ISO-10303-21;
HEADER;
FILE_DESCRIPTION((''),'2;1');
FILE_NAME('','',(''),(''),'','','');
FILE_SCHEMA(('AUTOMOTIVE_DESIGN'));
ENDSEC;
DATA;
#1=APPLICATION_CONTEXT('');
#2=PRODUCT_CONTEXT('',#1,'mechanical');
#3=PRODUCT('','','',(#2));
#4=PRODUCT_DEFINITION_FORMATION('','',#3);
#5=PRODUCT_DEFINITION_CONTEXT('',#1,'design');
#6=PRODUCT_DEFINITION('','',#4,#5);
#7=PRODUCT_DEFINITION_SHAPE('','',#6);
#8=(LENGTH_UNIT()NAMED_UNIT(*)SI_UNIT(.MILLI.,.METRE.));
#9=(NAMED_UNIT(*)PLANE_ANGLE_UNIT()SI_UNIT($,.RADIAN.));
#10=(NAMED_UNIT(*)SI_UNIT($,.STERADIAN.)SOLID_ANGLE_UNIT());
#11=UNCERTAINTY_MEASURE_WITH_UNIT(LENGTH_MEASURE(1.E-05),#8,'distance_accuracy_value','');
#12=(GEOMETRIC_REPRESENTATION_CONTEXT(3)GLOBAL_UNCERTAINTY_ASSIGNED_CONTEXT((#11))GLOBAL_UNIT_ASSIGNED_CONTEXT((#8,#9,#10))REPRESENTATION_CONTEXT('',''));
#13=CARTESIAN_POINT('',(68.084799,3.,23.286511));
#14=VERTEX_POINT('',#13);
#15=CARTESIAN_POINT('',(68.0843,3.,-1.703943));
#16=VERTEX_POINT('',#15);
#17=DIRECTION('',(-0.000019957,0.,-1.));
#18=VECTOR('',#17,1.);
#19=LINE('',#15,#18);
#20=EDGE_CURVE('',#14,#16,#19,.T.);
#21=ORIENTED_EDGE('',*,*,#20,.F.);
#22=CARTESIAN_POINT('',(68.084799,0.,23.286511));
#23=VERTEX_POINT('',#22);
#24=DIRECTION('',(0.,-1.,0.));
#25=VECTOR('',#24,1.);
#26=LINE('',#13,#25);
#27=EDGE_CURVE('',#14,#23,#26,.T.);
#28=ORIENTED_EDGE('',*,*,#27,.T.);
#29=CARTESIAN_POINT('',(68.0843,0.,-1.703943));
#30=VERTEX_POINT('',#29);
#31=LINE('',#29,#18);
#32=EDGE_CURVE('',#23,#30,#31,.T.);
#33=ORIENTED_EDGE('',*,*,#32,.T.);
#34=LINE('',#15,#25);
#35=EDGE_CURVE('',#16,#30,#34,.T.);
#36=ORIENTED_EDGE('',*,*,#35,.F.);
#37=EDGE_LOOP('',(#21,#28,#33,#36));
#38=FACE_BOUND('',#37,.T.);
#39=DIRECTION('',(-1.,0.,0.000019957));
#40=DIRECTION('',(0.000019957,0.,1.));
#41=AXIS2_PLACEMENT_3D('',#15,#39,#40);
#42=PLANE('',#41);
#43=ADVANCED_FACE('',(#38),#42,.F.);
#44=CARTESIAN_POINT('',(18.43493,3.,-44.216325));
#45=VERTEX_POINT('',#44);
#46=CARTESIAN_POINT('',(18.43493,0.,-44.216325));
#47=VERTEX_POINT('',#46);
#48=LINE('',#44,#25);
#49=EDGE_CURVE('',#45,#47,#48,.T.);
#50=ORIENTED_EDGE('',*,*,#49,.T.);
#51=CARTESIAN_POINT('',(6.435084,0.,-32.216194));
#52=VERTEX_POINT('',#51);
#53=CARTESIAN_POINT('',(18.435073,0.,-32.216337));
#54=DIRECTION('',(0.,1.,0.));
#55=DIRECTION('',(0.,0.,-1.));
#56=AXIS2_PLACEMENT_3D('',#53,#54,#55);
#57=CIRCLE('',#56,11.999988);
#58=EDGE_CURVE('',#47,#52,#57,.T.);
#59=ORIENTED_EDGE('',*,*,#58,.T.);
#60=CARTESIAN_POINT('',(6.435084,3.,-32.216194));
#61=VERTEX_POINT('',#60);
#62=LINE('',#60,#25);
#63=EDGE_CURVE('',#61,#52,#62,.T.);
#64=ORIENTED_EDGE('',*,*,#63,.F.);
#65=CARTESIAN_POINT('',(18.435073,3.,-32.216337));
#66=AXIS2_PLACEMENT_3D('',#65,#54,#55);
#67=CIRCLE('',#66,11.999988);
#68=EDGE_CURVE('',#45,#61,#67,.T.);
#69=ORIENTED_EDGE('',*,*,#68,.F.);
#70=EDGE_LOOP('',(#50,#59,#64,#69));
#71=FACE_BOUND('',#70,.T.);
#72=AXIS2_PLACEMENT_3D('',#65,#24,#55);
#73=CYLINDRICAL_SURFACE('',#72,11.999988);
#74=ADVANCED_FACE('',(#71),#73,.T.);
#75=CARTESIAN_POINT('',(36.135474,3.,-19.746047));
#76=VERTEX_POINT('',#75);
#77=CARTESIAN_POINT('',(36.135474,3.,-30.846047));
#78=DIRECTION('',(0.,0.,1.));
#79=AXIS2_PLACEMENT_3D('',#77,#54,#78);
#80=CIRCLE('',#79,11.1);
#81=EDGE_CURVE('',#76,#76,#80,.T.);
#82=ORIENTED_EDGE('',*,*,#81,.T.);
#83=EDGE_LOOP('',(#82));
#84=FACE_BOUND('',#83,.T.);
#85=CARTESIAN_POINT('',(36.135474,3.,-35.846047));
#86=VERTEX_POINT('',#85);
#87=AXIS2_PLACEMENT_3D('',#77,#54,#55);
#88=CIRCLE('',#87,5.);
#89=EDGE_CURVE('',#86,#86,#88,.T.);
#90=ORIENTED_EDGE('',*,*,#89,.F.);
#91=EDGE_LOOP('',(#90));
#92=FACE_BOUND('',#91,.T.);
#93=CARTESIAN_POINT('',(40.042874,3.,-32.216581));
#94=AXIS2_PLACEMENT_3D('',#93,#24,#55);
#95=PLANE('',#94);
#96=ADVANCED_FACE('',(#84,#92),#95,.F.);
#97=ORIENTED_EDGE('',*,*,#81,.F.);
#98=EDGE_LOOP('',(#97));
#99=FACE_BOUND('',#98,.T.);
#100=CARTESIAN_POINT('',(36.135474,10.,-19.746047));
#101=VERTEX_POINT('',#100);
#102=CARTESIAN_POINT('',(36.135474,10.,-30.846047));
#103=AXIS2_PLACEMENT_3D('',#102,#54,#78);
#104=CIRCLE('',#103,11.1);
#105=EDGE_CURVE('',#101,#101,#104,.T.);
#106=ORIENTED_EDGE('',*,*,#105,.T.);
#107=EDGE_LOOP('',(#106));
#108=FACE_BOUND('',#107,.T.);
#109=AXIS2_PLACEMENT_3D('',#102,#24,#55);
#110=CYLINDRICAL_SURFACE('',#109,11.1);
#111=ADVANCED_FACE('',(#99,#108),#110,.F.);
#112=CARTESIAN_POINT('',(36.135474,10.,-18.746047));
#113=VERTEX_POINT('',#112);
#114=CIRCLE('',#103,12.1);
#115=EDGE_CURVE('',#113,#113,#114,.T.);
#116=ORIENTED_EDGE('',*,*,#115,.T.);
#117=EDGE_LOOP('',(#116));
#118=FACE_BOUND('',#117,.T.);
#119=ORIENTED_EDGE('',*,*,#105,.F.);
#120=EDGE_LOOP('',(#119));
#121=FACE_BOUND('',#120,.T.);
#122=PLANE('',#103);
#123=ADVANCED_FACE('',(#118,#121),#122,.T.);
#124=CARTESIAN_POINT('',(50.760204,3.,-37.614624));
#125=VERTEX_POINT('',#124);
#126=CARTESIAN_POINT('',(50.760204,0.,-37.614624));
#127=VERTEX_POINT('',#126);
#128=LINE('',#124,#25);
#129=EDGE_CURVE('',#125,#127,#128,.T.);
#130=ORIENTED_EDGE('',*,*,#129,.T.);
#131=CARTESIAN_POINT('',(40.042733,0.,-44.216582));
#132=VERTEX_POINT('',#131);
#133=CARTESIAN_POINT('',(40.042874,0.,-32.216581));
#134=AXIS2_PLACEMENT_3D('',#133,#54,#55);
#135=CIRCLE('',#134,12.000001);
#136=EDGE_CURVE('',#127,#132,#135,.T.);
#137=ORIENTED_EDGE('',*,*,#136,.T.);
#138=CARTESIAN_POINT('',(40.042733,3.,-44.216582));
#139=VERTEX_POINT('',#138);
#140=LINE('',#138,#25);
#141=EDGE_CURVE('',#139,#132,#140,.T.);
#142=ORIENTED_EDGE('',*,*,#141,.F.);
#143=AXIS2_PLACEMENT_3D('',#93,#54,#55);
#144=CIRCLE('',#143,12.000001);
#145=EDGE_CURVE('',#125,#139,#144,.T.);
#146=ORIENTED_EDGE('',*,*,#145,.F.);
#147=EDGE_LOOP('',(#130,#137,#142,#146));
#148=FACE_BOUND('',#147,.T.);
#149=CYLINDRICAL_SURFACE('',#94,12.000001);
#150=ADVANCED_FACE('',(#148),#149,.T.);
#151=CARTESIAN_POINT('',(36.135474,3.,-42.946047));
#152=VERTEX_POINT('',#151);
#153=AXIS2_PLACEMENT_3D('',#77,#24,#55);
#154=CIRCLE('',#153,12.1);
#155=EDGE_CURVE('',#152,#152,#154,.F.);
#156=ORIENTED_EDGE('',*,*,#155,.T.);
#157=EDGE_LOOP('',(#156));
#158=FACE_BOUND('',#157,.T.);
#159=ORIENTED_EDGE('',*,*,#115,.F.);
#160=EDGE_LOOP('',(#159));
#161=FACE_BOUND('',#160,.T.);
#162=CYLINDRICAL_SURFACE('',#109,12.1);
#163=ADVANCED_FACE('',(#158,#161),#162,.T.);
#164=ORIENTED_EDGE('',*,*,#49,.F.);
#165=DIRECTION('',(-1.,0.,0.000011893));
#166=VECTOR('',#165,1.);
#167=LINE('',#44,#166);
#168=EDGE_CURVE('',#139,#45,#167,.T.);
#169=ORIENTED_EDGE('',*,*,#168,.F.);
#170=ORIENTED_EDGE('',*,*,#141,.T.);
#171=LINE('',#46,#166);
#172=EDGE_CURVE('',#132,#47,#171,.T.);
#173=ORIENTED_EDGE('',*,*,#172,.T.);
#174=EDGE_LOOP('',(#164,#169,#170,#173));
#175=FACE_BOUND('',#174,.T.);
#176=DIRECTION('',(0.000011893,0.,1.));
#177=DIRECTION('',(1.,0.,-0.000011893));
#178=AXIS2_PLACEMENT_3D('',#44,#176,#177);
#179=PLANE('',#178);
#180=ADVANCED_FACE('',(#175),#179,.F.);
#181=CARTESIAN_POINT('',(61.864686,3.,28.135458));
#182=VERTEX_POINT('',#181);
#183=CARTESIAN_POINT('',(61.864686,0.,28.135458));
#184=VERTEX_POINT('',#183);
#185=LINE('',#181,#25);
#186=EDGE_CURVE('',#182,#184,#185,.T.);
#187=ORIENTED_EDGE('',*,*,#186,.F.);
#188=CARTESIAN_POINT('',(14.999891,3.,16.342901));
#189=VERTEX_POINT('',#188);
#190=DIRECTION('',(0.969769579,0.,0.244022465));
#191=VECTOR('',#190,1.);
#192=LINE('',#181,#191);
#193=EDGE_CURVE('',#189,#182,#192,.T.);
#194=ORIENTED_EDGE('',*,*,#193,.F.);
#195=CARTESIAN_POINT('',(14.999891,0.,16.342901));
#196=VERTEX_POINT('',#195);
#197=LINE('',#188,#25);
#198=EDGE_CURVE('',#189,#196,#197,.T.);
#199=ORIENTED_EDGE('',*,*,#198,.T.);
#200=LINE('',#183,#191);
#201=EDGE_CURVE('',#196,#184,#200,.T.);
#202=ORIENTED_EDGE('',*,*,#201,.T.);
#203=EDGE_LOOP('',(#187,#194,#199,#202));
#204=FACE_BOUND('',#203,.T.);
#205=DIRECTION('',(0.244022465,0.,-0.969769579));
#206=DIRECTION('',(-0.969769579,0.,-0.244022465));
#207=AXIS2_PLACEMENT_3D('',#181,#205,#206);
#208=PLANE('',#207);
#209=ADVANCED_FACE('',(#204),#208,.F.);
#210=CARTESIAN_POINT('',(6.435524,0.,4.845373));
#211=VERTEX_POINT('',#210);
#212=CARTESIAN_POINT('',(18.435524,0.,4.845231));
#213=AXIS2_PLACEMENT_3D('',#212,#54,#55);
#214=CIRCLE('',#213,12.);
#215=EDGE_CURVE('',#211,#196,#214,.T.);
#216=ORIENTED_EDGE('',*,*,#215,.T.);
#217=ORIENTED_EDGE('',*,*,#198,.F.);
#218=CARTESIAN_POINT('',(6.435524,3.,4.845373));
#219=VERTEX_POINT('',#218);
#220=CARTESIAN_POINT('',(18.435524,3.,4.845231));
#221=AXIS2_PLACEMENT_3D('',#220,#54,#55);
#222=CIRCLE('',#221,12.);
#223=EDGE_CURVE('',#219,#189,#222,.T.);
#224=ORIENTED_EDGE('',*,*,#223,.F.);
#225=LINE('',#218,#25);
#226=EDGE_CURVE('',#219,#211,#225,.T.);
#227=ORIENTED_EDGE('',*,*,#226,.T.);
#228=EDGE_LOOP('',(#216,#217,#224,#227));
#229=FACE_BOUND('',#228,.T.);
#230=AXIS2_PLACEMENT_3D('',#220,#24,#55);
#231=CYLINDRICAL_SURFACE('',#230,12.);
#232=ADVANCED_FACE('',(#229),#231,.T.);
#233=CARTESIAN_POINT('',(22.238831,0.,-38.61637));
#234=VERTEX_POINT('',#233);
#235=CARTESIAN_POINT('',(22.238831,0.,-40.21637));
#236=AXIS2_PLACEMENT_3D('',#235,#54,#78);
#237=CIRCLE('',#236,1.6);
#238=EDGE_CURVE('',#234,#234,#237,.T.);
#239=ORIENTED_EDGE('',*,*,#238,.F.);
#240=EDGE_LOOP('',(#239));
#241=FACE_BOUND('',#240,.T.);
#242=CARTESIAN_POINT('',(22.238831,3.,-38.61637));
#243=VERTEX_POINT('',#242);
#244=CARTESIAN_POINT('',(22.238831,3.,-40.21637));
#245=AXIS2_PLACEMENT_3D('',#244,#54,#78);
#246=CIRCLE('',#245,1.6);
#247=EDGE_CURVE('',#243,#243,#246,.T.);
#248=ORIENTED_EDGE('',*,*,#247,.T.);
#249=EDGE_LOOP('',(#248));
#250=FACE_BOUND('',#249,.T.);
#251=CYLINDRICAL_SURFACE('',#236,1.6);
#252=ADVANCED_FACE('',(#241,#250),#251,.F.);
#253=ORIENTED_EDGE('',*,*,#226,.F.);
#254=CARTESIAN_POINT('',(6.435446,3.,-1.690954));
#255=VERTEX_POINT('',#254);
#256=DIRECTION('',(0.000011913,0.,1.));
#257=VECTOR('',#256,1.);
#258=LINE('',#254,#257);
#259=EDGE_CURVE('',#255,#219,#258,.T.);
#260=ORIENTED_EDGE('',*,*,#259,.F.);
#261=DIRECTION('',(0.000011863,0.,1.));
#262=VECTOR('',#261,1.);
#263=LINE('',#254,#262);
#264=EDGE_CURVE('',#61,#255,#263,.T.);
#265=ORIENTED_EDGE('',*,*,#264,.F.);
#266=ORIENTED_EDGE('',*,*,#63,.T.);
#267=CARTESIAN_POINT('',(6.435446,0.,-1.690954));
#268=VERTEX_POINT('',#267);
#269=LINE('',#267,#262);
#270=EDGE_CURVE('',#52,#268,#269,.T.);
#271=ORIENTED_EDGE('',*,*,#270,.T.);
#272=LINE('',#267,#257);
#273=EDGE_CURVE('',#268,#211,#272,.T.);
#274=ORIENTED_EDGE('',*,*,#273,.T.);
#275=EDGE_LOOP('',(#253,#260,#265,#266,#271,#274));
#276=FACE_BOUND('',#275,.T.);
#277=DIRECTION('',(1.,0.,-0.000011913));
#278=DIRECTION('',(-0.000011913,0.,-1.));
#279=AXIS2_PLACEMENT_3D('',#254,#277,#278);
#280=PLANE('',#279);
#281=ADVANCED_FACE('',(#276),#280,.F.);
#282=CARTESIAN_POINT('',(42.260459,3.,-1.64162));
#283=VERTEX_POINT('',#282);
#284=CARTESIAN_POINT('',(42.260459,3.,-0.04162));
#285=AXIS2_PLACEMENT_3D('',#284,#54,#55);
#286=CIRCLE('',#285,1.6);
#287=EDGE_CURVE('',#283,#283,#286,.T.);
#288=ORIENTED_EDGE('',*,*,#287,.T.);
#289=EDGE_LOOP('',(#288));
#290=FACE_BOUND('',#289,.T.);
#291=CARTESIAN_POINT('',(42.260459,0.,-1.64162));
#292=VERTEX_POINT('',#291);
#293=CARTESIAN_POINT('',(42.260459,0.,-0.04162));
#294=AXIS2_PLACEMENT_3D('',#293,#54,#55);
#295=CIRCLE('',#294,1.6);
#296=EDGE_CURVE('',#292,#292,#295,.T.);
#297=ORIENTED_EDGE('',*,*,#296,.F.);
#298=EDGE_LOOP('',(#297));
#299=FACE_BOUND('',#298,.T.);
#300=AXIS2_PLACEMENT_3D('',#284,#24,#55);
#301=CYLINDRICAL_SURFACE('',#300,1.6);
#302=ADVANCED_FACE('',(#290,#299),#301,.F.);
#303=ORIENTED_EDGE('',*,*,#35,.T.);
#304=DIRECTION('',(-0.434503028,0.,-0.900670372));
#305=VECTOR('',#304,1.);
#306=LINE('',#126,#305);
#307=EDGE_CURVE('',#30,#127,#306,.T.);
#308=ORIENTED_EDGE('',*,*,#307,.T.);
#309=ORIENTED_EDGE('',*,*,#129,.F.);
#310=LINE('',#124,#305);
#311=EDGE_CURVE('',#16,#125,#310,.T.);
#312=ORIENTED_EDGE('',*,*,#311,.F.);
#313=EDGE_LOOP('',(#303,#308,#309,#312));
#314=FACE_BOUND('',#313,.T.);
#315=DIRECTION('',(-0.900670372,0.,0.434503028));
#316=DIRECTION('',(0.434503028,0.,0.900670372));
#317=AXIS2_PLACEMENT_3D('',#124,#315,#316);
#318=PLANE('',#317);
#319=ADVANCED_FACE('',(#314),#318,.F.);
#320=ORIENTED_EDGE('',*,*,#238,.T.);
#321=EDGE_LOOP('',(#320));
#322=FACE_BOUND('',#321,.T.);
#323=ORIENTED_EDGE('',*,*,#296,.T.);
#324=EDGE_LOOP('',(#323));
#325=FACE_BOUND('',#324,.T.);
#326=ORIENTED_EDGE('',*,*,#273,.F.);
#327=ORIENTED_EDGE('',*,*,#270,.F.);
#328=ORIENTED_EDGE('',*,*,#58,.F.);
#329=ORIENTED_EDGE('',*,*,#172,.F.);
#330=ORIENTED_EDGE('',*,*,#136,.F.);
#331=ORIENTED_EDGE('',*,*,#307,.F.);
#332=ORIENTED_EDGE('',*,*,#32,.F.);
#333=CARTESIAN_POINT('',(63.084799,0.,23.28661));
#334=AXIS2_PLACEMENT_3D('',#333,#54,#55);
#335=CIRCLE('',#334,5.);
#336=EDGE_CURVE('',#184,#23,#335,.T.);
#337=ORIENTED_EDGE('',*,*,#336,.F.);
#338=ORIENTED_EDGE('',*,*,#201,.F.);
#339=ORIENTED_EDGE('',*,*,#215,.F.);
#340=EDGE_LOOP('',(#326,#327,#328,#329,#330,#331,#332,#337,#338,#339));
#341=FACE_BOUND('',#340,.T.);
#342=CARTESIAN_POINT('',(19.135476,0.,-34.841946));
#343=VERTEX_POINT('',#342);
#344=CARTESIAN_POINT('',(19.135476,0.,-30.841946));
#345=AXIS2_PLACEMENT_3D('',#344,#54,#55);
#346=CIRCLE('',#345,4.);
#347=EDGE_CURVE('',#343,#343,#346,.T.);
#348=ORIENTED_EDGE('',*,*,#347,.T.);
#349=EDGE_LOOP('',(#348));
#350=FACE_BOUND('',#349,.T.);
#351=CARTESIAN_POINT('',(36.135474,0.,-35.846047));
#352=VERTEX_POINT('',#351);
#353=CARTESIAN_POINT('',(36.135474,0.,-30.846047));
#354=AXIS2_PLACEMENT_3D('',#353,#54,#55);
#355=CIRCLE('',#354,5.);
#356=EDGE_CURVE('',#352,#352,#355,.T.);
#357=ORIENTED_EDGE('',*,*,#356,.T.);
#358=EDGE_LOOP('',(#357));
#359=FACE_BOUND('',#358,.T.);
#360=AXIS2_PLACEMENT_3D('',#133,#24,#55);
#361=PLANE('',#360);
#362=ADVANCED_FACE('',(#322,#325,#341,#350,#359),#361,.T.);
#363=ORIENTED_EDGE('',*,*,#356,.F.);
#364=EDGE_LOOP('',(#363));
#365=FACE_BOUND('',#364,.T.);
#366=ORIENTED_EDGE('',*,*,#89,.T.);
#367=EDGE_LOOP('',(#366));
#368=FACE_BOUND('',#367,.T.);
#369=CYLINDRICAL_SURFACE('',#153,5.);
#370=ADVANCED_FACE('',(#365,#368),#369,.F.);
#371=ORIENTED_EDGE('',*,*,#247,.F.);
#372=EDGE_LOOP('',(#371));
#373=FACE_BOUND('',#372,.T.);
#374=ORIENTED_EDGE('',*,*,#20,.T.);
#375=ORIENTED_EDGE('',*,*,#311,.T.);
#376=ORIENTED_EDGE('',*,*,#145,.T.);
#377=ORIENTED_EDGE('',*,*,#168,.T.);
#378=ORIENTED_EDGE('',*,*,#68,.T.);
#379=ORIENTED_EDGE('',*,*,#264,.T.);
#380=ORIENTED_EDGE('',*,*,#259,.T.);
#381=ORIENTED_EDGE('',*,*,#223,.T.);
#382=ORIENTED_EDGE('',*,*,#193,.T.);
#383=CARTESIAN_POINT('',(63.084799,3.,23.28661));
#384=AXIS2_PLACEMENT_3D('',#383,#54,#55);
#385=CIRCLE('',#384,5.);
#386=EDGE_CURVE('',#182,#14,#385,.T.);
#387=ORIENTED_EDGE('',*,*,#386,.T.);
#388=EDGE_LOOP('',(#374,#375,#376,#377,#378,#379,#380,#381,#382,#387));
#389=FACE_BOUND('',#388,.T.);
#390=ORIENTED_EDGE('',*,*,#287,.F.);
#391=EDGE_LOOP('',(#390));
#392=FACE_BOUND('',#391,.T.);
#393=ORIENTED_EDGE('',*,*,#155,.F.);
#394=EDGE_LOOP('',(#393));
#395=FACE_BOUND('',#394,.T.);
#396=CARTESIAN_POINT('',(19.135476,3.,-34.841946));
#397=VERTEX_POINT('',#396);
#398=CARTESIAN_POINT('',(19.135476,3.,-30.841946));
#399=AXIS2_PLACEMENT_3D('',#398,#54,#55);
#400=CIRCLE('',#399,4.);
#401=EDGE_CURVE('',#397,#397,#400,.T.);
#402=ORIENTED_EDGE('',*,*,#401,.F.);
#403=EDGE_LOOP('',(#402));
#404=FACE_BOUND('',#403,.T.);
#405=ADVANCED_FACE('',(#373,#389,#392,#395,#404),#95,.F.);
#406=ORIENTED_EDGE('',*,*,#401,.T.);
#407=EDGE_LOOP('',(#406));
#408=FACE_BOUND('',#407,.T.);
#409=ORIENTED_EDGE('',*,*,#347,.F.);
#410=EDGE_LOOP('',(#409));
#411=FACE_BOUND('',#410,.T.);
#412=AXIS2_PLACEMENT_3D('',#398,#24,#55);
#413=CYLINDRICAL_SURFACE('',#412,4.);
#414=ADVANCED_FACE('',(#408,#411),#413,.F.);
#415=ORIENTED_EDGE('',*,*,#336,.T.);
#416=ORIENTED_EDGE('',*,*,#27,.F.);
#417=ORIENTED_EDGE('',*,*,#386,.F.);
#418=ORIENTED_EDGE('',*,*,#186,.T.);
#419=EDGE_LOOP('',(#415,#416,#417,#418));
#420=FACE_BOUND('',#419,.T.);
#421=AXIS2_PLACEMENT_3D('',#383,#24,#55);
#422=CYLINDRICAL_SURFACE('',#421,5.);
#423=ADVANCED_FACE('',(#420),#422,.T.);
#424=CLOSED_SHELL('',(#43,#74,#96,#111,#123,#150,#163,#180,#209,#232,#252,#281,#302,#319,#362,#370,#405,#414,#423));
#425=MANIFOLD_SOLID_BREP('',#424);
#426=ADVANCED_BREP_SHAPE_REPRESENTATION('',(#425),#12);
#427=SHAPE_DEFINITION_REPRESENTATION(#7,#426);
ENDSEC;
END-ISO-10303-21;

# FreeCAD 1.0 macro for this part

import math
import FreeCAD as App
import Part
import Sketcher

V = App.Vector

doc = App.newDocument("Part")
body = doc.addObject("PartDesign::Body", "Body")

# Sketch on XZ plane
sketch1 = doc.addObject("Sketcher::SketchObject", "Sketch")
body.addObject(sketch1)
sketch1.AttachmentSupport = (doc.XZ_Plane, [""])
sketch1.MapMode = "FlatFace"
sketch1.addGeometry([
    Part.LineSegment(V(68.1, -1.7, 0), V(50.8, -37.6, 0)),  # 0
    Part.ArcOfCircle(Part.Circle(V(40, -32.2, 0), V(0, 0, 1), 12), math.radians(-90), math.radians(-27)),  # 1
    Part.LineSegment(V(40, -44.2, 0), V(18.4, -44.2, 0)),  # 2
    Part.ArcOfCircle(Part.Circle(V(18.4, -32.2, 0), V(0, 0, 1), 12), math.radians(180), math.radians(270)),  # 3
    Part.LineSegment(V(6.4, -32.2, 0), V(6.4, -1.7, 0)),  # 4
    Part.LineSegment(V(6.4, -1.7, 0), V(6.4, 4.8, 0)),  # 5
    Part.ArcOfCircle(Part.Circle(V(18.4, 4.8, 0), V(0, 0, 1), 12), math.radians(107), math.radians(180)),  # 6
    Part.LineSegment(V(15, 16.3, 0), V(61.9, 28.1, 0)),  # 7
    Part.ArcOfCircle(Part.Circle(V(63.1, 23.3, 0), V(0, 0, 1), 5), math.radians(0), math.radians(104)),  # 8
    Part.LineSegment(V(68.1, 23.3, 0), V(68.1, -1.7, 0)),  # 9
    Part.Circle(V(42.3, 0, 0), V(0, 0, 1), 1.6),  # 10
    Part.Circle(V(36.1, -30.8, 0), V(0, 0, 1), 5),  # 11
    Part.Circle(V(19.1, -30.8, 0), V(0, 0, 1), 4),  # 12
], False)
sketch1.addConstraint([
    Sketcher.Constraint("Coincident", 0, 2, 1, 2),
    Sketcher.Constraint("Tangent", 1, 1, 2, 1),
    Sketcher.Constraint("Tangent", 2, 2, 3, 2),
    Sketcher.Constraint("Tangent", 3, 1, 4, 1),
    Sketcher.Constraint("Coincident", 4, 2, 5, 1),
    Sketcher.Constraint("Tangent", 5, 2, 6, 2),
    Sketcher.Constraint("Coincident", 6, 1, 7, 1),
    Sketcher.Constraint("Tangent", 7, 2, 8, 2),
    Sketcher.Constraint("Tangent", 8, 1, 9, 1),
    Sketcher.Constraint("Coincident", 9, 2, 0, 1),
    Sketcher.Constraint("Equal", 1, 6),
    Sketcher.Constraint("Equal", 8, 11),
    Sketcher.Constraint("Perpendicular", 2, 4),
    Sketcher.Constraint("Parallel", 4, 5),
    Sketcher.Constraint("Diameter", 11, 10.0),
    Sketcher.Constraint("Diameter", 12, 8.0),
    Sketcher.Constraint("Radius", 1, 12.000001),
    Sketcher.Constraint("Diameter", 10, 3.2),
    Sketcher.Constraint("DistanceX", 12, 3, 11, 3, 16.999999),
    Sketcher.Constraint("Radius", 3, 11.999988),
    Sketcher.Constraint("Distance", 7, 48.325701),
    Sketcher.Constraint("DistanceX", -1, 1, 8, 3, 63.084799),
    Sketcher.Constraint("DistanceY", -1, 1, 6, 1, 16.342901),
    Sketcher.Constraint("DistanceX", -1, 1, 9, 2, 68.0843),
    Sketcher.Constraint("DistanceX", 3, 3, 1, 3, 21.607802),
    Sketcher.Constraint("DistanceX", 11, 3, 1, 3, 3.9074),
    Sketcher.Constraint("DistanceY", 11, 3, 12, 3, 0.004102),
    Sketcher.Constraint("DistanceY", 9, 2, 7, 2, 29.8394),
    Sketcher.Constraint("Distance", 0, 39.871059),
    Sketcher.Constraint("Distance", 4, 30.52524),
    Sketcher.Constraint("DistanceY", 1, 3, -1, 1, 32.216581),
    Sketcher.Constraint("DistanceY", -1, 1, 6, 3, 4.845231),
    Sketcher.Constraint("DistanceY", -1, 1, 8, 3, 23.28661),
    Sketcher.Constraint("DistanceX", -1, 1, 10, 3, 42.260459),
    Sketcher.Constraint("DistanceY", 10, 3, -1, 1, 0.04162),
    Sketcher.Constraint("DistanceX", -1, 1, 2, 2, 18.43493),
    Sketcher.Constraint("DistanceY", 3, 3, 11, 3, 1.37029),
])
pad1 = doc.addObject("PartDesign::Pad", "Pad")
body.addObject(pad1)
pad1.Profile = sketch1
pad1.Length = 3
pad1.Reversed = True

# Sketch on XZ plane
sketch2 = doc.addObject("Sketcher::SketchObject", "Sketch001")
body.addObject(sketch2)
sketch2.AttachmentSupport = (doc.XZ_Plane, [""])
sketch2.MapMode = "FlatFace"
sketch2.AttachmentOffset = App.Placement(V(0, 0, -3), App.Rotation())
sketch2.addGeometry([
    Part.Circle(V(36, -31, 0), V(0, 0, 1), 12),
    Part.Circle(V(36, -31, 0), V(0, 0, 1), 11),
], False)
sketch2.addConstraint([
    Sketcher.Constraint("Coincident", 1, 3, 0, 3),
    Sketcher.Constraint("Diameter", 0, 24.2),
    Sketcher.Constraint("Diameter", 1, 22.2),
    Sketcher.Constraint("DistanceX", -1, 1, 0, 3, 36.135474),
    Sketcher.Constraint("DistanceY", 0, 3, -1, 1, 30.846047),
])
pad2 = doc.addObject("PartDesign::Pad", "Pad001")
body.addObject(pad2)
pad2.Profile = sketch2
pad2.Length = 7
pad2.Reversed = True

# Sketch on XZ plane
sketch3 = doc.addObject("Sketcher::SketchObject", "Sketch002")
body.addObject(sketch3)
sketch3.AttachmentSupport = (doc.XZ_Plane, [""])
sketch3.MapMode = "FlatFace"
sketch3.AttachmentOffset = App.Placement(V(0, 0, -3), App.Rotation())
sketch3.addGeometry(Part.Circle(V(22.2, -40.2, 0), V(0, 0, 1), 1.6), False)
sketch3.addConstraint([
    Sketcher.Constraint("Diameter", 0, 3.2),
    Sketcher.Constraint("DistanceX", -1, 1, 0, 3, 22.238831),
    Sketcher.Constraint("DistanceY", 0, 3, -1, 1, 40.21637),
])
pocket1 = doc.addObject("PartDesign::Pocket", "Pocket")
body.addObject(pocket1)
pocket1.Profile = sketch3
pocket1.Type = "ThroughAll"
pocket1.Reversed = True

doc.recompute()
